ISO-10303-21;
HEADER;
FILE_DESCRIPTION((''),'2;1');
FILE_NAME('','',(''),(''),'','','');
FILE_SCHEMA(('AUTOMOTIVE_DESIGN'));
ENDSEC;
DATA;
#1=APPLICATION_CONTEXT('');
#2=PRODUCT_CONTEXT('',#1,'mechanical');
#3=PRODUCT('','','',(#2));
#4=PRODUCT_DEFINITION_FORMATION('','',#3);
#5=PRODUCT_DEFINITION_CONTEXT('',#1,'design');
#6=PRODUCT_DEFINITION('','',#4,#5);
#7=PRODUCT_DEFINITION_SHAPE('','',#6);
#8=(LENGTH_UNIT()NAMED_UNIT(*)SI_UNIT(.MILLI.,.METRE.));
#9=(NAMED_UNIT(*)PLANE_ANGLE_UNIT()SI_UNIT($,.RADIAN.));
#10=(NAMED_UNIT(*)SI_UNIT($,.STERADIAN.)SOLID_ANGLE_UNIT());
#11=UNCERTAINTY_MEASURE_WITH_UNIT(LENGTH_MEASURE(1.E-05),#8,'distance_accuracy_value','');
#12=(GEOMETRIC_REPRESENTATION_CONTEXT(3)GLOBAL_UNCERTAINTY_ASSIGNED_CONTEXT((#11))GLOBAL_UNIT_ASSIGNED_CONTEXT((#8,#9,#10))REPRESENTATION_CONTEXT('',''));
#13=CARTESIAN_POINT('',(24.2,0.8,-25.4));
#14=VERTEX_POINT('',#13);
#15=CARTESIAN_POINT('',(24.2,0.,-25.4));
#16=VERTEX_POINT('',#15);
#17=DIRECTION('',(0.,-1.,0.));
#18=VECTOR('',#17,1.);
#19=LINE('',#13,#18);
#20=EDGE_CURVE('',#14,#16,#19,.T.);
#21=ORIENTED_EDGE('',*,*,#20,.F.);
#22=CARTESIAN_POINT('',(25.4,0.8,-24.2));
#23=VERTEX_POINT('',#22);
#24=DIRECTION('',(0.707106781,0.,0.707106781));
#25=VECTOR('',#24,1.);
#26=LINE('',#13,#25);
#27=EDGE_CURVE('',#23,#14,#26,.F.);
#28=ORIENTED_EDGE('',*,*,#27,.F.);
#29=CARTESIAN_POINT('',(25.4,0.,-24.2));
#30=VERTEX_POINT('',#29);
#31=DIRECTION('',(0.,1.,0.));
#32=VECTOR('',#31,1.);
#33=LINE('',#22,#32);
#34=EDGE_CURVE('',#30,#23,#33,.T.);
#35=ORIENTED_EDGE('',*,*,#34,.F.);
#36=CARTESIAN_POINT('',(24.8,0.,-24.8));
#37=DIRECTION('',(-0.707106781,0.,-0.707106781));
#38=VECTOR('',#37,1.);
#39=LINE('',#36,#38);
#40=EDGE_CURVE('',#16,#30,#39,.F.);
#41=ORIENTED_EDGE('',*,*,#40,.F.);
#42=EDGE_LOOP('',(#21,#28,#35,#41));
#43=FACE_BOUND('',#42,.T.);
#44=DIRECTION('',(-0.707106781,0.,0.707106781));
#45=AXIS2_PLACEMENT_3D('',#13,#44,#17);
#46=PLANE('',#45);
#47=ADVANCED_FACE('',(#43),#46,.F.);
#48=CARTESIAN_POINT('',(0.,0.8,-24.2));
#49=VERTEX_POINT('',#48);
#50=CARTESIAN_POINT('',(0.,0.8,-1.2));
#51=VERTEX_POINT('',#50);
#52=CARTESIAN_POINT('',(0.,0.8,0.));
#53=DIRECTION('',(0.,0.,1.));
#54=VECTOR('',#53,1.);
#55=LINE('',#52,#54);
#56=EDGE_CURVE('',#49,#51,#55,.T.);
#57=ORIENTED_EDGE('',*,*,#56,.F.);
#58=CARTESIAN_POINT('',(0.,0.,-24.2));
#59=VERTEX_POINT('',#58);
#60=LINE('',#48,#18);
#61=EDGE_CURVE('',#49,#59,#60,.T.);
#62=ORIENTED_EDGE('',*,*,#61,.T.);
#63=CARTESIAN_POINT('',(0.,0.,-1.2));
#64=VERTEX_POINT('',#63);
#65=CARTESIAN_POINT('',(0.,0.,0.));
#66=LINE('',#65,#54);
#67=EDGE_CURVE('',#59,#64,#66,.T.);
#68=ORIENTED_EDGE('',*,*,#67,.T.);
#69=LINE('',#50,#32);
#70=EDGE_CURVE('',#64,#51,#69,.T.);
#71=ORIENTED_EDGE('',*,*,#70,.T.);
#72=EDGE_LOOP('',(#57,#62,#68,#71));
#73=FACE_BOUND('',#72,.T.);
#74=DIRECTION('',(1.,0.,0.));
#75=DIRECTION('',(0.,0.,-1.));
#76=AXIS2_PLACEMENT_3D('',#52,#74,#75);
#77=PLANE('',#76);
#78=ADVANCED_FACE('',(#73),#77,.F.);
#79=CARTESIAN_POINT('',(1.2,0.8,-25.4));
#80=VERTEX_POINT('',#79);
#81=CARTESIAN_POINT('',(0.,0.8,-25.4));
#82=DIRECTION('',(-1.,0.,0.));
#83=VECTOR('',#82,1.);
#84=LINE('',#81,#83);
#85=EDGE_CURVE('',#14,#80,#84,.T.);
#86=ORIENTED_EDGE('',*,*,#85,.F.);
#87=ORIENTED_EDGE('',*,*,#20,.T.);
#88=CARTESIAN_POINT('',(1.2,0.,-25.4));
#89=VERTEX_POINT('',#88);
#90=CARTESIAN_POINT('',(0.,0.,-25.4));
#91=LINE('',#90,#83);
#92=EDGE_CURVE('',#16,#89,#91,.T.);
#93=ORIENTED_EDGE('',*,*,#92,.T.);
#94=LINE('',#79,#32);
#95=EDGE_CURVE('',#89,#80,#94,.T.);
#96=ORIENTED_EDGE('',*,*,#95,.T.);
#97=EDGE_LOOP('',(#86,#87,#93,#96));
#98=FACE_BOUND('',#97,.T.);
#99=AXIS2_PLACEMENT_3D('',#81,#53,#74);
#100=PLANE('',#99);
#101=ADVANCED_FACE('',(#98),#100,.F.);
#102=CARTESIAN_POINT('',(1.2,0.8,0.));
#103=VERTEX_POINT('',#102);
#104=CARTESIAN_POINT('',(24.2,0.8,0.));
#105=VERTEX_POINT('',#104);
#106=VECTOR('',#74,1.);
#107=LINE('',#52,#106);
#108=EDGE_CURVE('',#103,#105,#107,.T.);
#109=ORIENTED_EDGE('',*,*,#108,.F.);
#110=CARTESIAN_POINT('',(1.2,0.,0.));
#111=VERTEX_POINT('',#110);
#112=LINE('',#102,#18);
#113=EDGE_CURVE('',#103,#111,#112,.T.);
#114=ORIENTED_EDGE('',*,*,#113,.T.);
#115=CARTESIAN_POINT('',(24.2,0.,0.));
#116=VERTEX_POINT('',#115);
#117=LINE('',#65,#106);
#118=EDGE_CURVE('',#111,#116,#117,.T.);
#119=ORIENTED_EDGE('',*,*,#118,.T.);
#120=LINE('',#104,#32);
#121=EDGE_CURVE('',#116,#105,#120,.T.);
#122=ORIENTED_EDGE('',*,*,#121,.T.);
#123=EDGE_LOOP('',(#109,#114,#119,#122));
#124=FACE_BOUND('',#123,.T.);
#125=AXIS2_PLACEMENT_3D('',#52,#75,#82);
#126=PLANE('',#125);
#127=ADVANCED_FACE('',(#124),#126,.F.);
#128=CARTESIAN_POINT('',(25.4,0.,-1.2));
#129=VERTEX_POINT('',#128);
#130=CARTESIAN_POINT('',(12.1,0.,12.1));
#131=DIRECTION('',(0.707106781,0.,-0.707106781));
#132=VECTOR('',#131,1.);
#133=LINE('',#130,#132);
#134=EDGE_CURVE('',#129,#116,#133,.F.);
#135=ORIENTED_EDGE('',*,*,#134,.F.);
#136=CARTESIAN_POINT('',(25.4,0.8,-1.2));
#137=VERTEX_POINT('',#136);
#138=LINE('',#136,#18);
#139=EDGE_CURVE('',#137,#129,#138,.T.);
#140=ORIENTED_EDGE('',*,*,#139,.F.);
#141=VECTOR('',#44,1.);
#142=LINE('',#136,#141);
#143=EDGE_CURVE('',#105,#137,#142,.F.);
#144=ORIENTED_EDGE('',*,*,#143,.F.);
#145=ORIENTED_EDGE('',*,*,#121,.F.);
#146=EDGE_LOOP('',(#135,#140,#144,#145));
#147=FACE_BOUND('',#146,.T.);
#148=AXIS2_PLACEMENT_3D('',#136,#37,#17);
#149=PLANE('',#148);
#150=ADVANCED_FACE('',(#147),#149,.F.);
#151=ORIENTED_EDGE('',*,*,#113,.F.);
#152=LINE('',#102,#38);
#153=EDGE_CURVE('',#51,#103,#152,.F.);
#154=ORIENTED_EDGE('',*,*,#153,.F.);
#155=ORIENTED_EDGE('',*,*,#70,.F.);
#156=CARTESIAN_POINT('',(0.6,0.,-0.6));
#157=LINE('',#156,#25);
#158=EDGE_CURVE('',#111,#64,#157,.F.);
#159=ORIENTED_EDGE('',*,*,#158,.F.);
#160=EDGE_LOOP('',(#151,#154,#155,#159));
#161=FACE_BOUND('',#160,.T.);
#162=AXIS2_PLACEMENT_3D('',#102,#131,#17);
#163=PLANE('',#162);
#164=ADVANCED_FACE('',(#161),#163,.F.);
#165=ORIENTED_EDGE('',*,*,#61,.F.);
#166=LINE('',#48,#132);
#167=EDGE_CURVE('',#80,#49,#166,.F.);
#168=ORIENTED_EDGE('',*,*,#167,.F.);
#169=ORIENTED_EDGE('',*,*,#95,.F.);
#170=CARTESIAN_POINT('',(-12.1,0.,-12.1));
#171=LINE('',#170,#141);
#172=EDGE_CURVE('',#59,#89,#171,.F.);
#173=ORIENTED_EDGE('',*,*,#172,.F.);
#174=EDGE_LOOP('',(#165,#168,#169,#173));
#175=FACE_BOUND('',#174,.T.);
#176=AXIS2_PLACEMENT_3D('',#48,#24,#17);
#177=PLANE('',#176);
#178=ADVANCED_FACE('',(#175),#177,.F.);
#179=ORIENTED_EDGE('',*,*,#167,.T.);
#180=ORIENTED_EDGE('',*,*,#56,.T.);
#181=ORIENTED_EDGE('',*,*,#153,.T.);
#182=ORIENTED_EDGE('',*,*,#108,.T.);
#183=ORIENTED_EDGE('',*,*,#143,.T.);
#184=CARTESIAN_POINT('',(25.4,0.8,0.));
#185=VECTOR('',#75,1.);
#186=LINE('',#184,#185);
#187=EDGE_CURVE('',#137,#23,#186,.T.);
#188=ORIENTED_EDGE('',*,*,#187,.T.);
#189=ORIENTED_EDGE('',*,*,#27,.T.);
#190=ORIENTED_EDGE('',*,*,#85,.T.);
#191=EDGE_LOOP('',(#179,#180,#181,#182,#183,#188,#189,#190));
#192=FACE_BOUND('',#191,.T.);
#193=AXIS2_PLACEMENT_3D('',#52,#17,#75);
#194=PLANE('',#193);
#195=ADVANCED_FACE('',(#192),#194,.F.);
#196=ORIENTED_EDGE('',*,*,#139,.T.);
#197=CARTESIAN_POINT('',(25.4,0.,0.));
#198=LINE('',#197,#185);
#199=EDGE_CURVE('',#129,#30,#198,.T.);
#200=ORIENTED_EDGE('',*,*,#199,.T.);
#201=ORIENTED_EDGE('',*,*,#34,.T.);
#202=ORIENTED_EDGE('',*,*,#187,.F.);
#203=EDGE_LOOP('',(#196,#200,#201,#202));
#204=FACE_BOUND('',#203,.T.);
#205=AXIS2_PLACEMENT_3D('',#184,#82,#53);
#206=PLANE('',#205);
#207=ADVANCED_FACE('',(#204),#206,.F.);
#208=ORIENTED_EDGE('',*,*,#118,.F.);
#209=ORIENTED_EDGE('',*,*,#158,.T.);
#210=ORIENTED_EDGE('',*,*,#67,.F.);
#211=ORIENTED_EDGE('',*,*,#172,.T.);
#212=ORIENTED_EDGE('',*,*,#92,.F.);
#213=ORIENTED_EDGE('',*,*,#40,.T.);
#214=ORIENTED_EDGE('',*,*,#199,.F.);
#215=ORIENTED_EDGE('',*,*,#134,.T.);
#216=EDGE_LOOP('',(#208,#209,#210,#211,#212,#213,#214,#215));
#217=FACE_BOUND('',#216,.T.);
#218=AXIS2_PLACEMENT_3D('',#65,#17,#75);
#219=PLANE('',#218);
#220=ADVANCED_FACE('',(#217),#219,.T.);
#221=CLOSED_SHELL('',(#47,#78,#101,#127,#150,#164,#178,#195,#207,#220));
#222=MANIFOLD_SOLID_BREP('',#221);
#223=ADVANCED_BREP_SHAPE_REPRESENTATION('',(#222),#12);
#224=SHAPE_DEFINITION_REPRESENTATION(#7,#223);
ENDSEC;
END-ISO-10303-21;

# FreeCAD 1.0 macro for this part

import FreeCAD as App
import Part
import Sketcher
from FreeCAD import Vector


def edges_at(feature, points):
    """Names of the edges that pass closest to the given points."""
    edges = feature.Shape.Edges
    near = lambda p: min(range(len(edges)), key=lambda i: edges[i].distToShape(Part.Vertex(*p))[0])
    return sorted({f"Edge{near(p) + 1}" for p in points})

doc = App.newDocument("Part")
body = doc.addObject("PartDesign::Body", "Body")

# Sketch on XZ plane
sketch1 = body.newObject("Sketcher::SketchObject", "Sketch")
sketch1.AttachmentSupport = (doc.getObject("XZ_Plane"), [""])
sketch1.MapMode = "FlatFace"
sketch1.addGeometry([
    Part.LineSegment(Vector(0, -25, 0), Vector(0, 0, 0)),
    Part.LineSegment(Vector(0, 0, 0), Vector(25, 0, 0)),
    Part.LineSegment(Vector(25, 0, 0), Vector(25, -25, 0)),
    Part.LineSegment(Vector(25, -25, 0), Vector(0, -25, 0)),
], False)
sketch1.addConstraint([
    Sketcher.Constraint("Coincident", 0, 2, 1, 1),
    Sketcher.Constraint("Coincident", 1, 2, 2, 1),
    Sketcher.Constraint("Coincident", 2, 2, 3, 1),
    Sketcher.Constraint("Coincident", 3, 2, 0, 1),
    Sketcher.Constraint("Vertical", 0),
    Sketcher.Constraint("Horizontal", 1),
    Sketcher.Constraint("Vertical", 2),
    Sketcher.Constraint("Horizontal", 3),
    Sketcher.Constraint("Coincident", 0, 2, -1, 1),
    Sketcher.Constraint("Equal", 3, 0),
    Sketcher.Constraint("DistanceX", 1, 1, 1, 2, 25.4),
])
pad1 = body.newObject("PartDesign::Pad", "Pad")
pad1.Profile = sketch1
pad1.Length = 0.8
pad1.Reversed = True
doc.recompute()

chamfer = body.newObject("PartDesign::Chamfer", "Chamfer")
chamfer.Base = (pad1, edges_at(pad1, [
    (0, 0.4, -25.4),
    (25.4, 0.4, -25.4),
    (25.4, 0.4, 0),
    (0, 0.4, 0),
]))
chamfer.Size = 1.2

doc.recompute()
